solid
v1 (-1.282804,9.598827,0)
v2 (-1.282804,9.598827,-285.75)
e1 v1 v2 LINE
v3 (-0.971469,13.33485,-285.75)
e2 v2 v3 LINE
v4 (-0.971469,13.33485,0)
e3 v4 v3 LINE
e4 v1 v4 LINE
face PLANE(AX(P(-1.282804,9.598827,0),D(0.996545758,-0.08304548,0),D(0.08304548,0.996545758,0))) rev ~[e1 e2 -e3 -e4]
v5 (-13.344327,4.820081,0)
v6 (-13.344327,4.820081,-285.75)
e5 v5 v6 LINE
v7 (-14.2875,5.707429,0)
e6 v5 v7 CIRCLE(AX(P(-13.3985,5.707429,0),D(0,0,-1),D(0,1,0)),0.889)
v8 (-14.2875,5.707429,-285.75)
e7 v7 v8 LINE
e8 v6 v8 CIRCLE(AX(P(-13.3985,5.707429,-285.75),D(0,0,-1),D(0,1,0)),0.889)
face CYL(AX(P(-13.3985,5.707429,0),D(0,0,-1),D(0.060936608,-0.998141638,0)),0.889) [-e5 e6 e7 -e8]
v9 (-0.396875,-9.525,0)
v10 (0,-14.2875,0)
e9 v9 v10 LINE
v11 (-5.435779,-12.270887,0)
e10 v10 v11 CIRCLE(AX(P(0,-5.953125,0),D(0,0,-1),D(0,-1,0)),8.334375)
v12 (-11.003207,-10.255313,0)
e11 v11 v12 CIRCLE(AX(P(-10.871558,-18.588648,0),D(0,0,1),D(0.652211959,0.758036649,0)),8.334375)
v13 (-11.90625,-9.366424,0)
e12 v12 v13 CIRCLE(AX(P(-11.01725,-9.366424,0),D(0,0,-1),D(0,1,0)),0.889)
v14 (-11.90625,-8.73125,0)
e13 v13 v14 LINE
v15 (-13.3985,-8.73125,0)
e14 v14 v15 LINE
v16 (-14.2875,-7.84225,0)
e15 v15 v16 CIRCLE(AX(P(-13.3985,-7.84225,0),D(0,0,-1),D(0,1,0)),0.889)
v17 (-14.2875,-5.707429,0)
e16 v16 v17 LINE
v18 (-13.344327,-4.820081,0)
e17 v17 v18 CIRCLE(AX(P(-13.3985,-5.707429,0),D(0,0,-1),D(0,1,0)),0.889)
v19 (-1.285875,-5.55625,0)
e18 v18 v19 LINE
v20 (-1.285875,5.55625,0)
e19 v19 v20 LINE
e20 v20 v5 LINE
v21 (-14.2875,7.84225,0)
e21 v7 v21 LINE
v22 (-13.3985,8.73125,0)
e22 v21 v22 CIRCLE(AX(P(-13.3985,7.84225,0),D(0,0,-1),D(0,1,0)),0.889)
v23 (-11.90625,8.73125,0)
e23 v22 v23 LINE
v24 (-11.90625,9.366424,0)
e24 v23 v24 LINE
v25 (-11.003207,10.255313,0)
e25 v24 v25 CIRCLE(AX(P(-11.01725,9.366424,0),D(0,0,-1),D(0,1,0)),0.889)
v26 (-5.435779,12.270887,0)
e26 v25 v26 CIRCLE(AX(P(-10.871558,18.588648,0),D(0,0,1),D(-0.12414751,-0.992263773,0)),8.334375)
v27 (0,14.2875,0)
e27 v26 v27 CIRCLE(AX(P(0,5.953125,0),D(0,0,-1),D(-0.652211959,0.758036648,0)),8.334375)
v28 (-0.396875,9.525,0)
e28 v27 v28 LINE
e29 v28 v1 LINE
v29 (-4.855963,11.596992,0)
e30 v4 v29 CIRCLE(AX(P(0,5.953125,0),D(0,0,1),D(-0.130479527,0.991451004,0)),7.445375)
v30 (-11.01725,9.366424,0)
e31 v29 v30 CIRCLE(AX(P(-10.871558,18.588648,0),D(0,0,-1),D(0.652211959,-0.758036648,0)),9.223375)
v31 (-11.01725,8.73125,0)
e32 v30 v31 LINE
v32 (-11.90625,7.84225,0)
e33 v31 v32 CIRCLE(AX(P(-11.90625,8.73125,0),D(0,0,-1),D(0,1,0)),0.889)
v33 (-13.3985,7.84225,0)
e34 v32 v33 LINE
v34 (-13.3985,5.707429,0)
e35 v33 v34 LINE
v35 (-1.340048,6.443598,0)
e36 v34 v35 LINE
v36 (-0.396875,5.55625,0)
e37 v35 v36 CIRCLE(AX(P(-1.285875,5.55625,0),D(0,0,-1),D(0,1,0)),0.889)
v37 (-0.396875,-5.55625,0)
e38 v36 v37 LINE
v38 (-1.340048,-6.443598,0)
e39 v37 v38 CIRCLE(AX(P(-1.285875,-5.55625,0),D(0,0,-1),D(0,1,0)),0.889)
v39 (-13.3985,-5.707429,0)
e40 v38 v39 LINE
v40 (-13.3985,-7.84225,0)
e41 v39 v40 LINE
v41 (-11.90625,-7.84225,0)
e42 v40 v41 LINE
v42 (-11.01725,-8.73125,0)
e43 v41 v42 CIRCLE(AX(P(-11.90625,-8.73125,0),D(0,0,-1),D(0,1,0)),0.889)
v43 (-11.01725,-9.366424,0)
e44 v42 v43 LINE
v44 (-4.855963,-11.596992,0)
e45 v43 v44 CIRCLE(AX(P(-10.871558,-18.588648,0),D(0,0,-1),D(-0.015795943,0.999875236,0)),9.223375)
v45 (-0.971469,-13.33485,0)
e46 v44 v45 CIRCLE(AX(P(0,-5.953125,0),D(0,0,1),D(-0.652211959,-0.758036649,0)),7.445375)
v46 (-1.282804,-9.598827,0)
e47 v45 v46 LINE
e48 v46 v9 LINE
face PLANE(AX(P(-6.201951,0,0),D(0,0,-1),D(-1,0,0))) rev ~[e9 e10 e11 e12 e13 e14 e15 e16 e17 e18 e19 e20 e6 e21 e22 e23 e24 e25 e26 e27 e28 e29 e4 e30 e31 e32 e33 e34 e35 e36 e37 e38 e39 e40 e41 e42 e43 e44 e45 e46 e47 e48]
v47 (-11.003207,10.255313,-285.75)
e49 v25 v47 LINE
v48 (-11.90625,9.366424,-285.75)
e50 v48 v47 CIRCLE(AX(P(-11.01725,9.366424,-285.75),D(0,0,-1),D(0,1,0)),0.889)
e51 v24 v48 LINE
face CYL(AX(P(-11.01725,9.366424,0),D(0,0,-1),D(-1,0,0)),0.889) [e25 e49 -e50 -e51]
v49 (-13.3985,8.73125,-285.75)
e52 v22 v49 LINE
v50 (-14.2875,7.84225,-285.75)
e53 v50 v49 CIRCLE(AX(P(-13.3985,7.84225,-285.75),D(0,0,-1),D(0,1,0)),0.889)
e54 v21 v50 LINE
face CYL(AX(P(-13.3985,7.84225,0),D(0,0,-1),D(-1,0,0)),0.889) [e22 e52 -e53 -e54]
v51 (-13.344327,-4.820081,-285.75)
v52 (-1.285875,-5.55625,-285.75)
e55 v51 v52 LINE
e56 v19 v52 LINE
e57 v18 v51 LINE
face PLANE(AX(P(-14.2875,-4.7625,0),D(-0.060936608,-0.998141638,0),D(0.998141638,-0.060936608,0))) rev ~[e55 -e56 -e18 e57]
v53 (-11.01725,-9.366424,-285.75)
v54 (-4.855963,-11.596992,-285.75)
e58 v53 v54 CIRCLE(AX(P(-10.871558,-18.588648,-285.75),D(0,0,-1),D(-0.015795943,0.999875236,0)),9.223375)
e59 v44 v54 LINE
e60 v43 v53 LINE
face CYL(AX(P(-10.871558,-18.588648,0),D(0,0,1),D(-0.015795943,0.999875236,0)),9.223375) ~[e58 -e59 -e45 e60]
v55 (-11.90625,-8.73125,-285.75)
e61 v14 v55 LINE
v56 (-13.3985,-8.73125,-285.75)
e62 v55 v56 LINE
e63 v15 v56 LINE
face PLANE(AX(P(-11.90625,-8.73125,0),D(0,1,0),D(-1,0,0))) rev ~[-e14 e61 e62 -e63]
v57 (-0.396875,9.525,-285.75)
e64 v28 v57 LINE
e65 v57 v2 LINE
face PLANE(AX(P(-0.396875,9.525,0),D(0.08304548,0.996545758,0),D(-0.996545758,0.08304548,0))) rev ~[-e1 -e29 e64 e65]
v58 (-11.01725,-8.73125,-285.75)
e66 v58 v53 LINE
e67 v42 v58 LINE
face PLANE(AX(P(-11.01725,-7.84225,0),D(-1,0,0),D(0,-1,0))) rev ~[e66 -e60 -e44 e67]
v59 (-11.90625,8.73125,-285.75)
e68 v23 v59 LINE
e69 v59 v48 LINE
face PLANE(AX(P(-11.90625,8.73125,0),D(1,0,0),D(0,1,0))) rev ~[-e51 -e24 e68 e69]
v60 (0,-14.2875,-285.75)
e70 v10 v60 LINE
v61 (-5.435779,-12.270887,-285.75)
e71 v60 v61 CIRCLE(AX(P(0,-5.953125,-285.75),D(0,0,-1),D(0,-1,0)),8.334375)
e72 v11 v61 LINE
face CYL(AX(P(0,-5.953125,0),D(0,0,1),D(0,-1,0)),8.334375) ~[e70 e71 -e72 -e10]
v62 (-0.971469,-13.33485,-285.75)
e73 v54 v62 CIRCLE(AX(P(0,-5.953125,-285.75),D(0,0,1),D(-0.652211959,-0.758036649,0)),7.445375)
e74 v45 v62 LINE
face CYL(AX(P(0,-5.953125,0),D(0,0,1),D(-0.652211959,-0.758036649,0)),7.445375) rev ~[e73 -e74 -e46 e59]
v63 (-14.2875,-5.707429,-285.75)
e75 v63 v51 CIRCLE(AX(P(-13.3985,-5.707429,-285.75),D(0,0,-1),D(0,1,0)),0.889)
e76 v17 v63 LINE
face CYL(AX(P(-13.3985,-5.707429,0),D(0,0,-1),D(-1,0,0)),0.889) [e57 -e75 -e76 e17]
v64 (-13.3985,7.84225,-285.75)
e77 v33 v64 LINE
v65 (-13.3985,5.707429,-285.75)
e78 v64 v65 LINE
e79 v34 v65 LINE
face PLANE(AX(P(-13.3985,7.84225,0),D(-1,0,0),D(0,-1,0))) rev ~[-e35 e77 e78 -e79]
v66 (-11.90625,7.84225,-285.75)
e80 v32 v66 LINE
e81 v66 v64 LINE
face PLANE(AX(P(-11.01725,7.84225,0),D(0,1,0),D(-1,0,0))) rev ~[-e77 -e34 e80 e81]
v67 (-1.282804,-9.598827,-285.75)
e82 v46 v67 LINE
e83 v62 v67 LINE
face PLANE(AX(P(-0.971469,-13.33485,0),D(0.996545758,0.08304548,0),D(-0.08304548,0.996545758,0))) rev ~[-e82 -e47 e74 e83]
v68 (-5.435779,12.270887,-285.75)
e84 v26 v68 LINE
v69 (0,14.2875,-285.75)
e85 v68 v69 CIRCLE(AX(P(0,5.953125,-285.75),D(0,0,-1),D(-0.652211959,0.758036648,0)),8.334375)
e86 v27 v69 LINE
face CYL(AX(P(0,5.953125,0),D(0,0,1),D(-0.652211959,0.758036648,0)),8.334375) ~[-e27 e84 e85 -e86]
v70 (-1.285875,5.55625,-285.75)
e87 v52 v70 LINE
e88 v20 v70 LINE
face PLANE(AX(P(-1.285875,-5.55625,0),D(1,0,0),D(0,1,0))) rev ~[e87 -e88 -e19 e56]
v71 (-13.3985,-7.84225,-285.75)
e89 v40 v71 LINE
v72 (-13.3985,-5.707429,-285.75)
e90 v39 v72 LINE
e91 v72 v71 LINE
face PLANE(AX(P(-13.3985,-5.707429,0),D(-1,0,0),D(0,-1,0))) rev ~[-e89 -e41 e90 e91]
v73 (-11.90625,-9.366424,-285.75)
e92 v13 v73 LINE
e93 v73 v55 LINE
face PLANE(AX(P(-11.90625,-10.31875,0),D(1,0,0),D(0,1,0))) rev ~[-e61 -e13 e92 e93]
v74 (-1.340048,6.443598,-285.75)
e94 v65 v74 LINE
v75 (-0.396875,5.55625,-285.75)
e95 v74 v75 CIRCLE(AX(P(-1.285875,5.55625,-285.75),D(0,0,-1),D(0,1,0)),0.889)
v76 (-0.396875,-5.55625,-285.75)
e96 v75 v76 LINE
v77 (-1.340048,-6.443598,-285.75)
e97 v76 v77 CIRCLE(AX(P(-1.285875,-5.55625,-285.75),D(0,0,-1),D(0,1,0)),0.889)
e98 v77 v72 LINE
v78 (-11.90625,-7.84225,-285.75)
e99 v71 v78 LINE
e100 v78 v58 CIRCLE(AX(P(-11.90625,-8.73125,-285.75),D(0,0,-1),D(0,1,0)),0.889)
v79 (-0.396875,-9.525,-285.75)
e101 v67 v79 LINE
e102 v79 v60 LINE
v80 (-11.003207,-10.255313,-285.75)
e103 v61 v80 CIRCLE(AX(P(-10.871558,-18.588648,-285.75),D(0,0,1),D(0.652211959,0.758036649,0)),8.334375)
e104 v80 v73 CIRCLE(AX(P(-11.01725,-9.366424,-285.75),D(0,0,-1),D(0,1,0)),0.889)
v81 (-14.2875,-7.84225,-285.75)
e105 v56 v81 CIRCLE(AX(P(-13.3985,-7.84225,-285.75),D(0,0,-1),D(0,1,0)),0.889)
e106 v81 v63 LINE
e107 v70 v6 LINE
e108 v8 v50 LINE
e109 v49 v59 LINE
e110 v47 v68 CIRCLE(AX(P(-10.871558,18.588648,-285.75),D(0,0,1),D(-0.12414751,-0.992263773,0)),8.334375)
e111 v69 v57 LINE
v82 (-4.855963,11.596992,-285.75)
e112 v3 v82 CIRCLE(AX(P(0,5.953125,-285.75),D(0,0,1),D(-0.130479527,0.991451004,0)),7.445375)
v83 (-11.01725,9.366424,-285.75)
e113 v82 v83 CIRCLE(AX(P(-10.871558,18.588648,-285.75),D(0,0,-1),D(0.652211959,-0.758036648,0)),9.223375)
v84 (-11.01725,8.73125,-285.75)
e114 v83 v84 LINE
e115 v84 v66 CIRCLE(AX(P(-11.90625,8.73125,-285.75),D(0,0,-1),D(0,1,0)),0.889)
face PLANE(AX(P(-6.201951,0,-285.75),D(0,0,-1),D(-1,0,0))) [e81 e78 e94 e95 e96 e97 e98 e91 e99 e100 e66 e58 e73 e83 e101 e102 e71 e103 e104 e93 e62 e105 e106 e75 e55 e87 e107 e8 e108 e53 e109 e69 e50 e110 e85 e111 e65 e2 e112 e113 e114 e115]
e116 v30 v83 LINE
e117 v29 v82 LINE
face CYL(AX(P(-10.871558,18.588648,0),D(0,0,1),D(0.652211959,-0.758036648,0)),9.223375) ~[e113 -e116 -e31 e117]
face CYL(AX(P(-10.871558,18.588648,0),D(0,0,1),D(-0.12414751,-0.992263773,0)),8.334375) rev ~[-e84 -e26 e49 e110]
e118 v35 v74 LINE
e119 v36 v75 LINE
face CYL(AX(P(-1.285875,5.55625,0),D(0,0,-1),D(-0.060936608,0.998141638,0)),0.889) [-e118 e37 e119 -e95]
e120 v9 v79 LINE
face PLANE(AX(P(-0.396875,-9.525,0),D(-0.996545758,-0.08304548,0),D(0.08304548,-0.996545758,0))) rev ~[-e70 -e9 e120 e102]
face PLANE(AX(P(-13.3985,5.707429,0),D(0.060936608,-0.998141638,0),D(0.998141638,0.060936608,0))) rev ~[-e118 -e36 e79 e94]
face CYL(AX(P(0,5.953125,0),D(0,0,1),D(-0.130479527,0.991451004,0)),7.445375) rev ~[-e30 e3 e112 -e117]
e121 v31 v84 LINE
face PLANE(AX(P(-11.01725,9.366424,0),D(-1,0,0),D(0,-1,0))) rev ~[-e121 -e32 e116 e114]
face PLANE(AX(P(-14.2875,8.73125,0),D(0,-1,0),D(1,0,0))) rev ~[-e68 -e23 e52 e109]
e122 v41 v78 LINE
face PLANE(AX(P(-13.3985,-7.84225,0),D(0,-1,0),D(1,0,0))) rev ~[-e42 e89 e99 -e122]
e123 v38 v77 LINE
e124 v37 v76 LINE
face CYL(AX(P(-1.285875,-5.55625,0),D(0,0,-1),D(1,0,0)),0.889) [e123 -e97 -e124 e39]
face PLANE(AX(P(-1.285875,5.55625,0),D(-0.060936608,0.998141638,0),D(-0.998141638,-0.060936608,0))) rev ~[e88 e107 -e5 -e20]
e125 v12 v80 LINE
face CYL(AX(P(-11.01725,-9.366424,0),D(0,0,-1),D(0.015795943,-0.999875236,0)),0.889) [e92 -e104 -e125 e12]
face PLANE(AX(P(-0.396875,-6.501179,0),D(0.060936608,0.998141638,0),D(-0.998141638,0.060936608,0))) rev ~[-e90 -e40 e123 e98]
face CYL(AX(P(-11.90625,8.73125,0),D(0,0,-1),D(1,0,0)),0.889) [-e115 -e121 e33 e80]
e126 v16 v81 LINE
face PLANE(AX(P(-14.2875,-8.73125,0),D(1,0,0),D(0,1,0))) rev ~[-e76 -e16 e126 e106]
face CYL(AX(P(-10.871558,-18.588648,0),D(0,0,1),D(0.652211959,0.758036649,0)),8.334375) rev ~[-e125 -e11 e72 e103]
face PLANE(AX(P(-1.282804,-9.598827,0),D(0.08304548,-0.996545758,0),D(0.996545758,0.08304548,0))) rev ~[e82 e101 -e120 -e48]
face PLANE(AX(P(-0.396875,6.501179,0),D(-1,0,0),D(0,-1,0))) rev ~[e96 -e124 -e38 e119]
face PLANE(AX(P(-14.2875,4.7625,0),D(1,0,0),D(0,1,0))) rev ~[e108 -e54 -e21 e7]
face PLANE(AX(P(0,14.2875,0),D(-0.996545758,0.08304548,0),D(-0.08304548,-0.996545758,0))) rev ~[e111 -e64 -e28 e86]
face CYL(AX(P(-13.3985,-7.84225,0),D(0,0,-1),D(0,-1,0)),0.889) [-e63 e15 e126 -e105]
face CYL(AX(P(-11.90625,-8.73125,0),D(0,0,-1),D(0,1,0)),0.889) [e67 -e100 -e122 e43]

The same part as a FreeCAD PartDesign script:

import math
import FreeCAD as App
import Part
import Sketcher

V = App.Vector
Q = App.Units.Quantity


def edges_at(feature, points):
    """Names of the edges that pass closest to the given points."""
    edges = feature.Shape.Edges
    near = lambda p: min(range(len(edges)), key=lambda i: edges[i].distToShape(Part.Vertex(*p))[0])
    return sorted({f"Edge{near(p) + 1}" for p in points})

doc = App.newDocument("Part")
body = doc.addObject("PartDesign::Body", "Body")

# Sketch on XY plane
sketch1 = doc.addObject("Sketcher::SketchObject", "Sketch")
body.addObject(sketch1)
sketch1.AttachmentSupport = (doc.XY_Plane, [""])
sketch1.MapMode = "FlatFace"
sketch1.addGeometry([
    Part.LineSegment(V(0, -14.2875, 0), V(-0.396875, -9.525, 0)),  # 0
    Part.LineSegment(V(-0.396875, -9.525, 0), V(-1.282804, -9.598827, 0)),  # 1
    Part.LineSegment(V(-1.282804, -9.598827, 0), V(-0.971469, -13.33485, 0)),  # 2
    Part.ArcOfCircle(Part.Circle(V(0, -5.953125, 0), V(0, 0, 1), 7.445375), math.radians(-130.708582), math.radians(-97.497303)),  # 3
    Part.ArcOfCircle(Part.Circle(V(-10.871558, -18.588648, 0), V(0, 0, 1), 9.223375), math.radians(49.291418), math.radians(90.905079)),  # 4
    Part.LineSegment(V(-11.01725, -9.366424, 0), V(-11.01725, -7.84225, 0)),  # 5
    Part.LineSegment(V(-11.01725, -7.84225, 0), V(-13.3985, -7.84225, 0)),  # 6
    Part.LineSegment(V(-13.3985, -7.84225, 0), V(-13.3985, -5.707429, 0)),  # 7
    Part.LineSegment(V(-13.3985, -5.707429, 0), V(-0.396875, -6.501179, 0)),  # 8
    Part.LineSegment(V(-0.396875, -6.501179, 0), V(-0.396875, 6.501179, 0)),  # 9
    Part.LineSegment(V(-0.396875, 6.501179, 0), V(-13.3985, 5.707429, 0)),  # 10
    Part.LineSegment(V(-13.3985, 5.707429, 0), V(-13.3985, 7.84225, 0)),  # 11
    Part.LineSegment(V(-13.3985, 7.84225, 0), V(-11.01725, 7.84225, 0)),  # 12
    Part.LineSegment(V(-11.01725, 7.84225, 0), V(-11.01725, 9.366424, 0)),  # 13
    Part.ArcOfCircle(Part.Circle(V(-10.871558, 18.588648, 0), V(0, 0, 1), 9.223375), math.radians(-90.905079), math.radians(-49.291418)),  # 14
    Part.ArcOfCircle(Part.Circle(V(0, 5.953125, 0), V(0, 0, 1), 7.445375), math.radians(97.497303), math.radians(130.708582)),  # 15
    Part.LineSegment(V(-0.971469, 13.33485, 0), V(-1.282804, 9.598827, 0)),  # 16
    Part.LineSegment(V(-1.282804, 9.598827, 0), V(-0.396875, 9.525, 0)),  # 17
    Part.LineSegment(V(-0.396875, 9.525, 0), V(0, 14.2875, 0)),  # 18
    Part.ArcOfCircle(Part.Circle(V(0, 5.953125, 0), V(0, 0, 1), 8.334375), math.radians(90), math.radians(130.708582)),  # 19
    Part.ArcOfCircle(Part.Circle(V(-10.871558, 18.588648, 0), V(0, 0, 1), 8.334375), math.radians(-97.131528), math.radians(-49.291418)),  # 20
    Part.LineSegment(V(-11.90625, 10.31875, 0), V(-11.90625, 8.73125, 0)),  # 21
    Part.LineSegment(V(-11.90625, 8.73125, 0), V(-14.2875, 8.73125, 0)),  # 22
    Part.LineSegment(V(-14.2875, 8.73125, 0), V(-14.2875, 4.7625, 0)),  # 23
    Part.LineSegment(V(-14.2875, 4.7625, 0), V(-1.285875, 5.55625, 0)),  # 24
    Part.LineSegment(V(-1.285875, 5.55625, 0), V(-1.285875, -5.55625, 0)),  # 25
    Part.LineSegment(V(-1.285875, -5.55625, 0), V(-14.2875, -4.7625, 0)),  # 26
    Part.LineSegment(V(-14.2875, -4.7625, 0), V(-14.2875, -8.73125, 0)),  # 27
    Part.LineSegment(V(-14.2875, -8.73125, 0), V(-11.90625, -8.73125, 0)),  # 28
    Part.LineSegment(V(-11.90625, -8.73125, 0), V(-11.90625, -10.31875, 0)),  # 29
    Part.ArcOfCircle(Part.Circle(V(-10.871558, -18.588648, 0), V(0, 0, 1), 8.334375), math.radians(49.291418), math.radians(97.131528)),  # 30
    Part.ArcOfCircle(Part.Circle(V(0, -5.953125, 0), V(0, 0, 1), 8.334375), math.radians(-130.708582), math.radians(-90)),  # 31
], False)
sketch1.addConstraint([
    Sketcher.Constraint("Coincident", 0, 2, 1, 1),
    Sketcher.Constraint("Coincident", 1, 2, 2, 1),
    Sketcher.Constraint("Coincident", 2, 2, 3, 2),
    Sketcher.Constraint("Tangent", 3, 1, 4, 1),
    Sketcher.Constraint("Coincident", 4, 2, 5, 1),
    Sketcher.Constraint("Coincident", 5, 2, 6, 1),
    Sketcher.Constraint("Coincident", 6, 2, 7, 1),
    Sketcher.Constraint("Coincident", 7, 2, 8, 1),
    Sketcher.Constraint("Coincident", 8, 2, 9, 1),
    Sketcher.Constraint("Coincident", 9, 2, 10, 1),
    Sketcher.Constraint("Coincident", 10, 2, 11, 1),
    Sketcher.Constraint("Coincident", 11, 2, 12, 1),
    Sketcher.Constraint("Coincident", 12, 2, 13, 1),
    Sketcher.Constraint("Coincident", 13, 2, 14, 1),
    Sketcher.Constraint("Tangent", 14, 2, 15, 2),
    Sketcher.Constraint("Coincident", 15, 1, 16, 1),
    Sketcher.Constraint("Coincident", 16, 2, 17, 1),
    Sketcher.Constraint("Coincident", 17, 2, 18, 1),
    Sketcher.Constraint("Coincident", 18, 2, 19, 1),
    Sketcher.Constraint("Tangent", 19, 2, 20, 2),
    Sketcher.Constraint("Coincident", 20, 1, 21, 1),
    Sketcher.Constraint("Coincident", 21, 2, 22, 1),
    Sketcher.Constraint("Coincident", 22, 2, 23, 1),
    Sketcher.Constraint("Coincident", 23, 2, 24, 1),
    Sketcher.Constraint("Coincident", 24, 2, 25, 1),
    Sketcher.Constraint("Coincident", 25, 2, 26, 1),
    Sketcher.Constraint("Coincident", 26, 2, 27, 1),
    Sketcher.Constraint("Coincident", 27, 2, 28, 1),
    Sketcher.Constraint("Coincident", 28, 2, 29, 1),
    Sketcher.Constraint("Coincident", 29, 2, 30, 2),
    Sketcher.Constraint("Tangent", 30, 1, 31, 1),
    Sketcher.Constraint("Coincident", 31, 2, 0, 1),
    Sketcher.Constraint("Vertical", 5),
    Sketcher.Constraint("Horizontal", 6),
    Sketcher.Constraint("Vertical", 7),
    Sketcher.Constraint("Vertical", 9),
    Sketcher.Constraint("Vertical", 11),
    Sketcher.Constraint("Horizontal", 12),
    Sketcher.Constraint("Vertical", 13),
    Sketcher.Constraint("Vertical", 21),
    Sketcher.Constraint("Horizontal", 22),
    Sketcher.Constraint("Vertical", 23),
    Sketcher.Constraint("Vertical", 25),
    Sketcher.Constraint("Vertical", 27),
    Sketcher.Constraint("Horizontal", 28),
    Sketcher.Constraint("Vertical", 29),
    Sketcher.Constraint("Coincident", 19, 3, 15, 3),
    Sketcher.Constraint("Coincident", 20, 3, 14, 3),
    Sketcher.Constraint("Coincident", 30, 3, 4, 3),
    Sketcher.Constraint("Coincident", 31, 3, 3, 3),
    Sketcher.Constraint("Equal", 4, 14),
    Sketcher.Constraint("Equal", 3, 15),
    Sketcher.Constraint("Equal", 19, 20),
    Sketcher.Constraint("Equal", 20, 30),
    Sketcher.Constraint("Symmetric", 3, 3, 15, 3, -1, 1),
    Sketcher.Constraint("Symmetric", 4, 3, 14, 3, -1),
    Sketcher.Constraint("Symmetric", 7, 2, 10, 2, -1),
    Sketcher.Constraint("Symmetric", 5, 2, 12, 2, -1),
    Sketcher.Constraint("Symmetric", 1, 2, 16, 2, -1),
    Sketcher.Constraint("Symmetric", 0, 2, 17, 2, -1),
    Sketcher.Constraint("Symmetric", 23, 2, 26, 2, -1),
    Sketcher.Constraint("Symmetric", 21, 2, 28, 2, -1),
    Sketcher.Constraint("PointOnObject", 18, 2, -2),
    Sketcher.Constraint("PointOnObject", 31, 2, -2),
    Sketcher.Constraint("Perpendicular", 0, 1),
    Sketcher.Constraint("Perpendicular", 1, 2),
    Sketcher.Constraint("Perpendicular", 16, 17),
    Sketcher.Constraint("Parallel", 10, 24),
    Sketcher.Constraint("Parallel", 8, 26),
    Sketcher.Constraint("Vertical", 0, 2, 8, 2),
    Sketcher.Constraint("Equal", 12, 22),
    Sketcher.Constraint("Equal", 8, 10),
    Sketcher.Constraint("Equal", 10, 24),
    Sketcher.Constraint("Radius", 19, Q("0.328125 in")),
    Sketcher.Constraint("DistanceX", 6, 2, 6, 1, Q("0.09375 in")),
    Sketcher.Constraint("DistanceY", 21, 2, 21, 1, Q("0.0625 in")),
    Sketcher.Constraint("DistanceY", 23, 2, 23, 1, Q("0.15625 in")),
    Sketcher.Constraint("DistanceY", 25, 2, 25, 1, Q("0.4375 in")),
    Sketcher.Constraint("Distance", 1, Q("0.035 in")),
    Sketcher.Constraint("DistanceY", 3, 3, -1, 1, Q("0.234375 in")),
    Sketcher.Constraint("DistanceX", 0, 2, -1, 1, Q("0.015625 in")),
    Sketcher.Constraint("DistanceY", 0, 2, -1, 1, Q("0.375 in")),
    Sketcher.Constraint("DistanceX", 20, 1, -1, 1, Q("0.46875 in")),
    Sketcher.Constraint("DistanceY", -1, 1, 20, 1, Q("0.40625 in")),
    Sketcher.Constraint("DistanceX", 20, 1, 13, 2, Q("0.035 in")),
    Sketcher.Constraint("DistanceY", 12, 2, 21, 2, Q("0.035 in")),
    Sketcher.Constraint("Radius", 3, Q("7.445375 mm")),
    Sketcher.Constraint("DistanceY", 7, 1, 7, 2, Q("2.134821 mm")),
])
pad1 = doc.addObject("PartDesign::Pad", "Pad")
body.addObject(pad1)
pad1.Profile = sketch1
pad1.Length = Q("11.25 in")
pad1.Reversed = True
doc.recompute()

fillet = doc.addObject("PartDesign::Fillet", "Fillet")
body.addObject(fillet)
fillet.Base = (pad1, edges_at(pad1, [
    (-11.906, -10.319, -142.875),
    (-14.287, -8.731, -142.875),
    (-14.287, -4.763, -142.875),
    (-14.287, 4.763, -142.875),
    (-14.287, 8.731, -142.875),
    (-11.906, 10.319, -142.875),
    (-11.017, 7.842, -142.875),
    (-0.397, 6.501, -142.875),
    (-0.397, -6.501, -142.875),
    (-11.017, -7.842, -142.875),
]))
fillet.Radius = Q("0.035 in")

doc.recompute()
